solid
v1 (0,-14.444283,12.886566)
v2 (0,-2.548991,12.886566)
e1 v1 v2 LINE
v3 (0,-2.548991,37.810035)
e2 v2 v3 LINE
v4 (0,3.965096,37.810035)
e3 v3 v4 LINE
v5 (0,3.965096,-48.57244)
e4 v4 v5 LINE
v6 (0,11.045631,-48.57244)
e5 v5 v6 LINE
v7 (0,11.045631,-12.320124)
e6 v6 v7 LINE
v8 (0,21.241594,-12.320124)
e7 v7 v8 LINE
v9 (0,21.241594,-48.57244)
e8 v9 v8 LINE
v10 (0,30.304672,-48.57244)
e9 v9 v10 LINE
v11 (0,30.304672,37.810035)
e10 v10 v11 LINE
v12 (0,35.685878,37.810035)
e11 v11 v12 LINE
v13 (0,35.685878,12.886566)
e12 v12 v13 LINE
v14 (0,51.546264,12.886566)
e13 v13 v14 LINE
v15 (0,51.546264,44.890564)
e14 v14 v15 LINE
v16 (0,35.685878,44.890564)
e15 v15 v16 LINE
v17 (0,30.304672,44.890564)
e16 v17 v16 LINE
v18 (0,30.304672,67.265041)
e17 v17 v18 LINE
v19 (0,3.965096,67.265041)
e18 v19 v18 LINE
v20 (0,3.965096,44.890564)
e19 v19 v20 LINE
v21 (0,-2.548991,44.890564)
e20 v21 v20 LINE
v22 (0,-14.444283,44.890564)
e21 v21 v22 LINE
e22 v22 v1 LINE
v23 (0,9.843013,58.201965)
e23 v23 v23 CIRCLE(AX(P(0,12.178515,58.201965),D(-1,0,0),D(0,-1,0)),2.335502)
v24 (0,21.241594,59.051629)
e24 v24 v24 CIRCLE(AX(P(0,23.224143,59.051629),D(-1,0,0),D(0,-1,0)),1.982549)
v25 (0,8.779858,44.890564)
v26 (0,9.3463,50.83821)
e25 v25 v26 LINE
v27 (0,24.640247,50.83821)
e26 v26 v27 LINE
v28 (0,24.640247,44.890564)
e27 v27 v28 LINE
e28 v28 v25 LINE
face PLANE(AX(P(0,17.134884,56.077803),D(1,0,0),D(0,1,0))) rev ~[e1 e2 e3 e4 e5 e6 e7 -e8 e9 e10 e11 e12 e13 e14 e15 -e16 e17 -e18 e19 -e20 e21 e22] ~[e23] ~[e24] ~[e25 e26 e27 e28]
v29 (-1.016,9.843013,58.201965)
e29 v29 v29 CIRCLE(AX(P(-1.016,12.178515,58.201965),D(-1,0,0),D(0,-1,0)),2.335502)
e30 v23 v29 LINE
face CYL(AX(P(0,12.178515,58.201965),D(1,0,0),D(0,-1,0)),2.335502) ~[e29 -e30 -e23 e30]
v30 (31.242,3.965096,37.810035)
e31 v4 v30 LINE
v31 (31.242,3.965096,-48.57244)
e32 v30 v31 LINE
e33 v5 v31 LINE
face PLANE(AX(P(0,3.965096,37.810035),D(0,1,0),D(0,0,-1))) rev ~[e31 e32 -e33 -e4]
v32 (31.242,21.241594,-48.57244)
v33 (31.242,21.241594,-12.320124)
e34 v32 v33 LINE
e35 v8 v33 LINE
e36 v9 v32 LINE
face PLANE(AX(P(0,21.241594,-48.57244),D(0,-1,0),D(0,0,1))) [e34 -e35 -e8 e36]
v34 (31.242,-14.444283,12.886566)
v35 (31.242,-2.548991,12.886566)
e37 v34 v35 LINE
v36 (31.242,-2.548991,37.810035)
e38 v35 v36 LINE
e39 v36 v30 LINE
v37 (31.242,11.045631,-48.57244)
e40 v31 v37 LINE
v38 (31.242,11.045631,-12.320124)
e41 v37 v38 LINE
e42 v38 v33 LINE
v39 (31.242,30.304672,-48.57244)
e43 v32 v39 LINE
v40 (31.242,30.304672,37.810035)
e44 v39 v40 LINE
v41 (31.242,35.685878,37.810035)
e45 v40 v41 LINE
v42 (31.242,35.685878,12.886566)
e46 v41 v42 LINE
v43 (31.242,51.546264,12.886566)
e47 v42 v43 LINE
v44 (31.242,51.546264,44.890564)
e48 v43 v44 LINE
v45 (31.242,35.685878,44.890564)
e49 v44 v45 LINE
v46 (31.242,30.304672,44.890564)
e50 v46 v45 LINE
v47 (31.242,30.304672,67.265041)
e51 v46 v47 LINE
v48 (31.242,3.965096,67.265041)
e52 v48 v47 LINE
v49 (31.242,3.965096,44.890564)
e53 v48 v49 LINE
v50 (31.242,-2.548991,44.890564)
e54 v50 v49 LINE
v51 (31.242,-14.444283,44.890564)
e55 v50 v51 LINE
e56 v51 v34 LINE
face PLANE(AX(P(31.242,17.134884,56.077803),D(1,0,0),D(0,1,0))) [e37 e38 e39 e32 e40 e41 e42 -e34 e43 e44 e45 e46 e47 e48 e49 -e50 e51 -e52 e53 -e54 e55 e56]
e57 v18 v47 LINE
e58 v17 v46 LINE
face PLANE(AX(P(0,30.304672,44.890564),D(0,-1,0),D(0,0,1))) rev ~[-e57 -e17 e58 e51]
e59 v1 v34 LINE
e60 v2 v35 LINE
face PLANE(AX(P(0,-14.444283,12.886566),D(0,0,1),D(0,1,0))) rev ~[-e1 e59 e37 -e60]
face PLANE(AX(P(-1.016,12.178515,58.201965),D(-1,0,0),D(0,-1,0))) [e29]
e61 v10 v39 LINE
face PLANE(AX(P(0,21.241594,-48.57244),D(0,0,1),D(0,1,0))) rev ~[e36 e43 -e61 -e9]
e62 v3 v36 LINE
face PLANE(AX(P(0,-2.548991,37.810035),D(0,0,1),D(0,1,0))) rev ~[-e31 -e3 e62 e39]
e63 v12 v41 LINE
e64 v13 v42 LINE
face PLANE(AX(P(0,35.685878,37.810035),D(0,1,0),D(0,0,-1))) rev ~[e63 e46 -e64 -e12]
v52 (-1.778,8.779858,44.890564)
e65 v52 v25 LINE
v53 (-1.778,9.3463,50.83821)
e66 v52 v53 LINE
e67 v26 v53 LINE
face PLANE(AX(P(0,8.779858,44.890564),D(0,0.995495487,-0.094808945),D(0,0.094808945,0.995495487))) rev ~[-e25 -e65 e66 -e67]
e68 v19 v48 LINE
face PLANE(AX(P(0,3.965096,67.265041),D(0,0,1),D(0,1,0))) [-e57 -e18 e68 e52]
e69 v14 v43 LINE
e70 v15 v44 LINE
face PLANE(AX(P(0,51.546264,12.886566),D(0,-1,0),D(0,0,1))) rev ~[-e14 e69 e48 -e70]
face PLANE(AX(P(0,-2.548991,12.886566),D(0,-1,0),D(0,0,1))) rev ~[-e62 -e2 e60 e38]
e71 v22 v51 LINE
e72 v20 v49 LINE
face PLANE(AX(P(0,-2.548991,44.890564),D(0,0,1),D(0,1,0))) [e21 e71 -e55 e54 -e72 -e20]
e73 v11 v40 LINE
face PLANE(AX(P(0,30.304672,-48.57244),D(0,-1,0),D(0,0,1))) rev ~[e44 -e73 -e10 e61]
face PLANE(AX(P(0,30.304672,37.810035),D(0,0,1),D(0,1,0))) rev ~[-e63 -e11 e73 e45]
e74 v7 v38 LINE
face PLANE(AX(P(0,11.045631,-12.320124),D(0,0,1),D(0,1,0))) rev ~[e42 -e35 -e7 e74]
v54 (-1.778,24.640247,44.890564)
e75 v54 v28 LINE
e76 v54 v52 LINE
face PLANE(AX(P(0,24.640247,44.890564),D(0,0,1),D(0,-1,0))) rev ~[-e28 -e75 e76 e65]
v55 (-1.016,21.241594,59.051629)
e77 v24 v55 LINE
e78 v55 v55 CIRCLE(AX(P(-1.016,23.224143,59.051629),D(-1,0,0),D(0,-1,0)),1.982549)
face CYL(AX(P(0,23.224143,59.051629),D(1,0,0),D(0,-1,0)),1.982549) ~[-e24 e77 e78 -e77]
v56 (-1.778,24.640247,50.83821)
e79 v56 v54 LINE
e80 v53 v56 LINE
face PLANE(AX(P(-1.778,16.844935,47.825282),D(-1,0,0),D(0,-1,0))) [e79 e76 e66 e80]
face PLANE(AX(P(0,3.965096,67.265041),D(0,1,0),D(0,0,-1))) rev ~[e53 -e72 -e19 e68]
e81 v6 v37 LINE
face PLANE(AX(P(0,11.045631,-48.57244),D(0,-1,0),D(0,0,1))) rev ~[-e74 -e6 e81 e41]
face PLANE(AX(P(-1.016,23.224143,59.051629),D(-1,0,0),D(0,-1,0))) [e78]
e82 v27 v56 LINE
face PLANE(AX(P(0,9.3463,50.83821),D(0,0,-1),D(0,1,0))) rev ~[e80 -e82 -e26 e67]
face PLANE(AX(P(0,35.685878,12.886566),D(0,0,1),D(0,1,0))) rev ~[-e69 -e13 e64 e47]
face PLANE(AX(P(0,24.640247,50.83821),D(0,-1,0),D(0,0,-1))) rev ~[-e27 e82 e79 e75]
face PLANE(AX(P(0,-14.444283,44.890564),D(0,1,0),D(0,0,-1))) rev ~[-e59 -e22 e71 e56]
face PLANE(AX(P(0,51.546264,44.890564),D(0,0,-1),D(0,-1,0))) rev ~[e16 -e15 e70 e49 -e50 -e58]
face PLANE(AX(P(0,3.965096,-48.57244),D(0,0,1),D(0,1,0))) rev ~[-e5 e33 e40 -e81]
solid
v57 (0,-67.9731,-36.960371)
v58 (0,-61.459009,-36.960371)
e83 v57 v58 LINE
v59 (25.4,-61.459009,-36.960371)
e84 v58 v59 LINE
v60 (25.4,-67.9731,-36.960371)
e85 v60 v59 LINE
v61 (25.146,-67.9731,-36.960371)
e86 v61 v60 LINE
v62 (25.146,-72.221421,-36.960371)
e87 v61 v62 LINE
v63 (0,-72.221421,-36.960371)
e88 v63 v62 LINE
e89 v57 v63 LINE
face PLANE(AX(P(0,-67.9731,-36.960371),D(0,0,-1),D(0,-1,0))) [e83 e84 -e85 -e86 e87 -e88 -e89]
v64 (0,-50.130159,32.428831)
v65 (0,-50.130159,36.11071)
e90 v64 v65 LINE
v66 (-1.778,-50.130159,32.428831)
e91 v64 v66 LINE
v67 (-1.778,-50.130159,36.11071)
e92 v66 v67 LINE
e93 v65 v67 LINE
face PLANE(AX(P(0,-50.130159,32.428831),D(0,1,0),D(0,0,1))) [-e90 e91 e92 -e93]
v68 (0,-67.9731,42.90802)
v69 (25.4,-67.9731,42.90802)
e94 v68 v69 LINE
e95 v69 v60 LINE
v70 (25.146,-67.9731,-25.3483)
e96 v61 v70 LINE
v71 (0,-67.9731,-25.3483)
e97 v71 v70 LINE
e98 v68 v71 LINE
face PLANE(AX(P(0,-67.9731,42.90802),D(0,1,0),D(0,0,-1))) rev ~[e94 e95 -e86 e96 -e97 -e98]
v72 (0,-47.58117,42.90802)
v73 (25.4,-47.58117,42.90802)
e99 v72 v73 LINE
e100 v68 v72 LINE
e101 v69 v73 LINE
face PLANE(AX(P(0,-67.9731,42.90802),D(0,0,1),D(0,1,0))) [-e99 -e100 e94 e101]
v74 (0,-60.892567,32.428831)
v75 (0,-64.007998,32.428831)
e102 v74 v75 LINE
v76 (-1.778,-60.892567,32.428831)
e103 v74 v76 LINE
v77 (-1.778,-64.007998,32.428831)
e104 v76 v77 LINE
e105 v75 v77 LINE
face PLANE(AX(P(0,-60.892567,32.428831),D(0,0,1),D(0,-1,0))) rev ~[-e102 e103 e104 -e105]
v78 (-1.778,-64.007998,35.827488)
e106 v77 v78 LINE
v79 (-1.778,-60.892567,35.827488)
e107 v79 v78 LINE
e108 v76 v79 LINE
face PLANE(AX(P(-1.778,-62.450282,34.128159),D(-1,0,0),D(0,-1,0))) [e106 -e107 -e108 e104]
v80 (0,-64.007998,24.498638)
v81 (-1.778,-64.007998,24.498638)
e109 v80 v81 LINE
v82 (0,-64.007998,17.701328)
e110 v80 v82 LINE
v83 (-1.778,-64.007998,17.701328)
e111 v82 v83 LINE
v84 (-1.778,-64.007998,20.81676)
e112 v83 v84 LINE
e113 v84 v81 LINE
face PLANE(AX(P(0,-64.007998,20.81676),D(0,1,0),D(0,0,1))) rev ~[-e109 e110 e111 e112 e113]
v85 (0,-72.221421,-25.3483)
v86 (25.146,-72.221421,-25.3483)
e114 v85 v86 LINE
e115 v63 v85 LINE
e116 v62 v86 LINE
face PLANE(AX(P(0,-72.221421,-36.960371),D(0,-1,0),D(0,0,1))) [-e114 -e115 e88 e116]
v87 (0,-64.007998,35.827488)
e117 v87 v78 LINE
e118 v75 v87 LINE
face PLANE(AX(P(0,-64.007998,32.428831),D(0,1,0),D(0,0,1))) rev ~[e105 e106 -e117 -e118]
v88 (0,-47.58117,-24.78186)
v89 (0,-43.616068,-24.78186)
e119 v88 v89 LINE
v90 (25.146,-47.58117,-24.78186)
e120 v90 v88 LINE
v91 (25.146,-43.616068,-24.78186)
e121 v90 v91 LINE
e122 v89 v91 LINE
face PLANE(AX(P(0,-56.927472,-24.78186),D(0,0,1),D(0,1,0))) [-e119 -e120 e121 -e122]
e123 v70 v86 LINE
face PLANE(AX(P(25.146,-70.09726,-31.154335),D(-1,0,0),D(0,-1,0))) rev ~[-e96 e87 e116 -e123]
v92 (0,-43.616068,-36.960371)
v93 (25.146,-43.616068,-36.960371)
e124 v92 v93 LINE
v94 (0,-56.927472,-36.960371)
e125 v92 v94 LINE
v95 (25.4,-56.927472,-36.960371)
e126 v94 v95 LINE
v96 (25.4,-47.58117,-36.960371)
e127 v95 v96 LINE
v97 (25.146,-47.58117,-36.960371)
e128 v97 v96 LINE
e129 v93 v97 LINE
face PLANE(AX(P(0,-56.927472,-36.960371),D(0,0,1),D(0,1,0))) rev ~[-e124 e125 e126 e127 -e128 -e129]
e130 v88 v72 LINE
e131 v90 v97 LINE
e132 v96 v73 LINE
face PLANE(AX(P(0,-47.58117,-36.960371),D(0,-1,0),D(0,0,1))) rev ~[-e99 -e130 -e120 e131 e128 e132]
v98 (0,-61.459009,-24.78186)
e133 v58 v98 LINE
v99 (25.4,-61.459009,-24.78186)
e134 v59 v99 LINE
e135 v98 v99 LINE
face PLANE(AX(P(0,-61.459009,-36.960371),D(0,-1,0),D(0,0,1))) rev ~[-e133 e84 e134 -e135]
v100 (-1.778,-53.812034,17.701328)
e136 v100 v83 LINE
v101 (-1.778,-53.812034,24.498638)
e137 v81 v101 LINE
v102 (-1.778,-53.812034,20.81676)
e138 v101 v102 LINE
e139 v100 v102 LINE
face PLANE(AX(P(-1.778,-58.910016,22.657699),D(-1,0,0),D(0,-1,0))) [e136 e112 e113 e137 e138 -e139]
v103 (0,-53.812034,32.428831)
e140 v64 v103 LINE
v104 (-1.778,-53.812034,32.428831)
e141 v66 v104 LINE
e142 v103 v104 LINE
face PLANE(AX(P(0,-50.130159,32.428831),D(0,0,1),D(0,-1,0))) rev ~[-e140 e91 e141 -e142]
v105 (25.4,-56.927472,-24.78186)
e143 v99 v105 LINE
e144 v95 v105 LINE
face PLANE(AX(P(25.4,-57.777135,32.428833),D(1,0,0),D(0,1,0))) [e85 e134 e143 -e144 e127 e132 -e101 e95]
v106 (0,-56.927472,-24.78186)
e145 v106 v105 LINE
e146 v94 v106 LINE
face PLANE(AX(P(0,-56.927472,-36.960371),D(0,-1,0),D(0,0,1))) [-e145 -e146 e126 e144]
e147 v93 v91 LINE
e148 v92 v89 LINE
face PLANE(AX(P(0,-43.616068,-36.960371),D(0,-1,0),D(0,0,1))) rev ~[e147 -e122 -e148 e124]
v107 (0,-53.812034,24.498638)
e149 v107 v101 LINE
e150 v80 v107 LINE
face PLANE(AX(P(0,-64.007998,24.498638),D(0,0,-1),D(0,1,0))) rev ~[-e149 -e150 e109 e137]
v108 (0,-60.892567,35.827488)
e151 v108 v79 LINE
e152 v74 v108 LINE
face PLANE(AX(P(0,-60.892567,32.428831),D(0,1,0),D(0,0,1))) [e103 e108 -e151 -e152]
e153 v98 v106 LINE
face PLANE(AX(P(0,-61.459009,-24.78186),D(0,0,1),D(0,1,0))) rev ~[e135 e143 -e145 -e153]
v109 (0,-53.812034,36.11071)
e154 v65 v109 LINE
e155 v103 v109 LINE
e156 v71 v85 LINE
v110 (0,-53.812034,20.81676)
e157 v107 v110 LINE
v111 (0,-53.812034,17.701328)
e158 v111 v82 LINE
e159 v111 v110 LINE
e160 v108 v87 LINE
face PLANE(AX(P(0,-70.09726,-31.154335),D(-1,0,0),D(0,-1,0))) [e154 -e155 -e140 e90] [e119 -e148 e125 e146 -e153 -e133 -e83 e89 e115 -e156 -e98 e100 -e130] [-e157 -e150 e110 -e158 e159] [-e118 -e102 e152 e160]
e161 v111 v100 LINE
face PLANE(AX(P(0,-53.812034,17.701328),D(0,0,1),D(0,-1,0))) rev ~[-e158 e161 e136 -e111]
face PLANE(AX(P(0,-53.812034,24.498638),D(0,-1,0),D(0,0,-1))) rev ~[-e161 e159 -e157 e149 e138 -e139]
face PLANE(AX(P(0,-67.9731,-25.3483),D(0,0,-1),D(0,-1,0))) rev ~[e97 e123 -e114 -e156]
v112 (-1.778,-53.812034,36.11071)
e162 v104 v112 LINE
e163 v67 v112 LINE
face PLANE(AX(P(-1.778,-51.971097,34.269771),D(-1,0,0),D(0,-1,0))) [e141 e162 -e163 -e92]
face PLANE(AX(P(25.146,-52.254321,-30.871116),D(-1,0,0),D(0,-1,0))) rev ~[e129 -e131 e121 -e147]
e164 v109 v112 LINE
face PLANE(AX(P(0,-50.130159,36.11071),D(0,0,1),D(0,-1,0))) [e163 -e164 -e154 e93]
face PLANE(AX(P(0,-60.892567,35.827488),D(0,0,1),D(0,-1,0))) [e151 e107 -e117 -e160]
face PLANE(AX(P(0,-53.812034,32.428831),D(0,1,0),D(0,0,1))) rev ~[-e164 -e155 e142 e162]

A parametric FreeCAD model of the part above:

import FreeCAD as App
import Part
import Sketcher
from FreeCAD import Vector
Q = App.Units.Quantity


def add_polygon(sketch, points):
    """Adds a closed chain of lines whose ends are joined by coincident constraints."""
    first, n = sketch.GeometryCount, len(points)
    for a, b in zip(points, points[1:] + points[:1]):
        sketch.addGeometry(Part.LineSegment(App.Vector(*a, 0), App.Vector(*b, 0)), False)
    for i in range(n):
        sketch.addConstraint(Sketcher.Constraint("Coincident", first + i, 2, first + (i + 1) % n, 1))

doc = App.newDocument("Part")
params = doc.addObject("Spreadsheet::Sheet", "Params")
for row, (alias, value) in enumerate([
    ("sketch1_height", "1.2599999 in"),
    ("pad1_length", "1.23 in"),
    ("pad2_length", "0.07 in"),
    ("pad3_length", "0.04 in"),
    ("pad4_length", "1 in"),
    ("pad5_length", "0.99 in"),
    ("pad6_length", "0.07 in"),
], start=1):
    params.set(f"A{row}", alias)
    params.set(f"B{row}", "=" + value)
    params.setAlias(f"B{row}", alias)

body = doc.addObject("PartDesign::Body", "Body")

# Sketch on YZ plane
sketch1 = body.newObject("Sketcher::SketchObject", "Sketch")
sketch1.AttachmentSupport = (doc.getObject("YZ_Plane"), [""])
sketch1.MapMode = "FlatFace"
add_polygon(sketch1, [(4, 67), (4, 45), (-3, 45), (-14, 45), (-14, 13), (-3, 13), (-3, 38), (4, 38), (4, -49), (11, -49), (11, -12), (21, -12), (21, -49), (30, -49), (30, 38), (36, 38), (36, 13), (52, 13), (52, 45), (36, 45), (30, 45), (30, 67)])  # lines 0-21
sketch1.addConstraint([
    Sketcher.Constraint("Vertical", 0),
    Sketcher.Constraint("Horizontal", 1),
    Sketcher.Constraint("Horizontal", 2),
    Sketcher.Constraint("Vertical", 3),
    Sketcher.Constraint("Horizontal", 4),
    Sketcher.Constraint("Vertical", 5),
    Sketcher.Constraint("Horizontal", 6),
    Sketcher.Constraint("Vertical", 7),
    Sketcher.Constraint("Horizontal", 8),
    Sketcher.Constraint("Vertical", 9),
    Sketcher.Constraint("Horizontal", 10),
    Sketcher.Constraint("Vertical", 11),
    Sketcher.Constraint("Horizontal", 12),
    Sketcher.Constraint("Vertical", 13),
    Sketcher.Constraint("Horizontal", 14),
    Sketcher.Constraint("Vertical", 15),
    Sketcher.Constraint("Horizontal", 16),
    Sketcher.Constraint("Vertical", 17),
    Sketcher.Constraint("Horizontal", 18),
    Sketcher.Constraint("Horizontal", 19),
    Sketcher.Constraint("Vertical", 20),
    Sketcher.Constraint("Horizontal", 21),
    Sketcher.Constraint("Horizontal", 8, 2, 11, 2),
    Sketcher.Constraint("Horizontal", 6, 2, 13, 2),
    Sketcher.Constraint("Horizontal", 4, 2, 15, 2),
    Sketcher.Constraint("Horizontal", 2, 2, 17, 2),
    Sketcher.Constraint("Vertical", 1, 2, 4, 2),
    Sketcher.Constraint("Vertical", 0, 2, 6, 2),
    Sketcher.Constraint("Vertical", 15, 2, 18, 2),
    Sketcher.Constraint("Vertical", 13, 2, 19, 2),
    Sketcher.Constraint("DistanceY", 3, 2, 3, 1, Q("1.2599999 in")),
    Sketcher.Constraint("DistanceX", 2, 2, 2, 1, Q("11.895292 mm")),
    Sketcher.Constraint("DistanceX", 12, 1, 12, 2, Q("9.063078 mm")),
    Sketcher.Constraint("DistanceY", 5, 1, 5, 2, Q("24.923469 mm")),
    Sketcher.Constraint("DistanceX", 7, 2, 10, 2, Q("17.276498 mm")),
    Sketcher.Constraint("DistanceX", 1, 2, 1, 1, Q("6.514088 mm")),
    Sketcher.Constraint("DistanceX", 8, 1, 8, 2, Q("7.080535 mm")),
    Sketcher.Constraint("DistanceX", 14, 1, 14, 2, Q("5.381206 mm")),
    Sketcher.Constraint("DistanceX", 16, 1, 16, 2, Q("15.860386 mm")),
    Sketcher.Constraint("DistanceY", 0, 2, 0, 1, Q("22.374477 mm")),
    Sketcher.Constraint("DistanceY", 7, 2, 7, 1, Q("86.382475 mm")),
    Sketcher.Constraint("DistanceY", 9, 1, 9, 2, Q("36.252316 mm")),
    Sketcher.Constraint("DistanceX", 1, 2, -1, 1, Q("2.548991 mm")),
    Sketcher.Constraint("DistanceY", 7, 2, -1, 1, Q("48.57244 mm")),
])
sketch1.setExpression("Constraints[52]", "Params.sketch1_height")
pad1 = body.newObject("PartDesign::Pad", "Pad")
pad1.Profile = sketch1
pad1.setExpression("Length", "Params.pad1_length")

# Sketch on YZ plane
sketch2 = body.newObject("Sketcher::SketchObject", "Sketch001")
sketch2.AttachmentSupport = (doc.getObject("YZ_Plane"), [""])
sketch2.MapMode = "FlatFace"
add_polygon(sketch2, [(9, 45), (9, 51), (25, 51), (25, 45)])  # lines 0-3
sketch2.addConstraint([
    Sketcher.Constraint("Horizontal", 1),
    Sketcher.Constraint("Vertical", 2),
    Sketcher.Constraint("Horizontal", 3),
    Sketcher.Constraint("DistanceX", 3, 2, 3, 1, Q("15.860389 mm")),
    Sketcher.Constraint("DistanceX", -1, 1, 0, 2, Q("9.3463 mm")),
    Sketcher.Constraint("Distance", 0, Q("5.974558 mm")),
    Sketcher.Constraint("DistanceX", 1, 1, 1, 2, Q("15.293947 mm")),
    Sketcher.Constraint("DistanceY", -1, 1, 0, 2, Q("50.83821 mm")),
])
pad2 = body.newObject("PartDesign::Pad", "Pad001")
pad2.Profile = sketch2
pad2.setExpression("Length", "Params.pad2_length")
pad2.Reversed = True

# Sketch on YZ plane
sketch3 = body.newObject("Sketcher::SketchObject", "Sketch002")
sketch3.AttachmentSupport = (doc.getObject("YZ_Plane"), [""])
sketch3.MapMode = "FlatFace"
sketch3.addGeometry(Part.Circle(Vector(23.2, 59.1, 0), Vector(0, 0, 1), 2), False)  # 0
sketch3.addGeometry(Part.Circle(Vector(12.2, 58.2, 0), Vector(0, 0, 1), 2.3), False)  # 1
add_polygon(sketch3, [(8.8, 44.9), (9.3, 50.8), (24.6, 50.8), (24.6, 44.9)])  # lines 2-5
sketch3.addConstraint([
    Sketcher.Constraint("Horizontal", 3),
    Sketcher.Constraint("Vertical", 4),
    Sketcher.Constraint("Horizontal", 5),
    Sketcher.Constraint("Diameter", 0, Q("3.965098 mm")),
    Sketcher.Constraint("Diameter", 1, Q("4.671004 mm")),
    Sketcher.Constraint("DistanceX", 5, 2, 5, 1, Q("15.860389 mm")),
    Sketcher.Constraint("DistanceX", -1, 1, 2, 2, Q("9.3463 mm")),
    Sketcher.Constraint("DistanceY", 4, 2, 1, 3, Q("13.311401 mm")),
    Sketcher.Constraint("Distance", 2, Q("5.974558 mm")),
    Sketcher.Constraint("DistanceX", 3, 1, 3, 2, Q("15.293947 mm")),
    Sketcher.Constraint("DistanceY", -1, 1, 0, 3, Q("59.051629 mm")),
    Sketcher.Constraint("DistanceY", -1, 1, 2, 2, Q("50.83821 mm")),
    Sketcher.Constraint("DistanceX", 1, 3, 0, 3, Q("11.045628 mm")),
    Sketcher.Constraint("DistanceX", -1, 1, 0, 3, Q("23.224143 mm")),
])
pad3 = body.newObject("PartDesign::Pad", "Pad002")
pad3.Profile = sketch3
pad3.setExpression("Length", "Params.pad3_length")
pad3.Reversed = True
body2 = doc.addObject("PartDesign::Body", "Body001")

# Sketch on YZ plane
sketch4 = body2.newObject("Sketcher::SketchObject", "Sketch003")
sketch4.AttachmentSupport = (doc.getObject("YZ_Plane001"), [""])
sketch4.MapMode = "FlatFace"
add_polygon(sketch4, [(-68, 42.9), (-68, -37), (-61.5, -37), (-61.5, -24.8), (-56.9, -24.8), (-56.9, -37), (-47.6, -37), (-47.6, 42.9)])  # lines 0-7
sketch4.addConstraint([
    Sketcher.Constraint("Vertical", 0),
    Sketcher.Constraint("Horizontal", 1),
    Sketcher.Constraint("Vertical", 2),
    Sketcher.Constraint("Horizontal", 3),
    Sketcher.Constraint("Vertical", 4),
    Sketcher.Constraint("Horizontal", 5),
    Sketcher.Constraint("Vertical", 6),
    Sketcher.Constraint("Horizontal", 7),
    Sketcher.Constraint("Horizontal", 1, 2, 4, 2),
    Sketcher.Constraint("DistanceX", 1, 1, 1, 2, Q("6.514091 mm")),
    Sketcher.Constraint("DistanceX", 7, 2, 7, 1, Q("20.39193 mm")),
    Sketcher.Constraint("DistanceY", 0, 2, 0, 1, Q("79.868391 mm")),
    Sketcher.Constraint("DistanceY", 2, 1, 2, 2, Q("12.17851 mm")),
    Sketcher.Constraint("DistanceX", 0, 2, -1, 1, Q("67.9731 mm")),
    Sketcher.Constraint("DistanceX", 3, 1, 3, 2, Q("4.531536 mm")),
    Sketcher.Constraint("DistanceY", 0, 2, -1, 1, Q("36.960371 mm")),
])
pad4 = body2.newObject("PartDesign::Pad", "Pad003")
pad4.Profile = sketch4
pad4.setExpression("Length", "Params.pad4_length")

# Sketch on YZ plane
sketch5 = body2.newObject("Sketcher::SketchObject", "Sketch004")
sketch5.AttachmentSupport = (doc.getObject("YZ_Plane001"), [""])
sketch5.MapMode = "FlatFace"
add_polygon(sketch5, [(-68, -25.3), (-68, -37), (-72.2, -37), (-72.2, -25.3)])  # lines 0-3
add_polygon(sketch5, [(-56.9, -37), (-56.9, -24.8), (-43.6, -24.8), (-43.6, -37)])  # lines 4-7
sketch5.addConstraint([
    Sketcher.Constraint("Vertical", 0),
    Sketcher.Constraint("Horizontal", 1),
    Sketcher.Constraint("Vertical", 2),
    Sketcher.Constraint("Horizontal", 3),
    Sketcher.Constraint("Vertical", 4),
    Sketcher.Constraint("Horizontal", 5),
    Sketcher.Constraint("Vertical", 6),
    Sketcher.Constraint("Horizontal", 7),
    Sketcher.Constraint("Horizontal", 1, 2, 6, 2),
    Sketcher.Constraint("DistanceX", 1, 2, 1, 1, Q("4.248321 mm")),
    Sketcher.Constraint("DistanceY", 0, 2, 0, 1, Q("11.612071 mm")),
    Sketcher.Constraint("DistanceY", 4, 1, 4, 2, Q("12.17851 mm")),
    Sketcher.Constraint("DistanceX", 0, 2, -1, 1, Q("67.9731 mm")),
    Sketcher.Constraint("DistanceY", 2, 2, -1, 1, Q("25.3483 mm")),
    Sketcher.Constraint("DistanceX", 5, 1, 5, 2, Q("13.311405 mm")),
    Sketcher.Constraint("DistanceX", 2, 2, 4, 2, Q("15.293948 mm")),
])
pad5 = body2.newObject("PartDesign::Pad", "Pad004")
pad5.Profile = sketch5
pad5.setExpression("Length", "Params.pad5_length")

# Sketch on YZ plane
sketch6 = body2.newObject("Sketcher::SketchObject", "Sketch005")
sketch6.AttachmentSupport = (doc.getObject("YZ_Plane001"), [""])
sketch6.MapMode = "FlatFace"
add_polygon(sketch6, [(-50.1, 36.1), (-50.1, 32.4), (-53.8, 32.4), (-53.8, 36.1)])  # lines 0-3
add_polygon(sketch6, [(-60.9, 35.8), (-60.9, 32.4), (-64, 32.4), (-64, 35.8)])  # lines 4-7
add_polygon(sketch6, [(-64, 20.8), (-64, 24.5), (-53.8, 24.5), (-53.8, 20.8), (-53.8, 17.7), (-64, 17.7)])  # lines 8-13
sketch6.addConstraint([
    Sketcher.Constraint("Vertical", 0),
    Sketcher.Constraint("Horizontal", 1),
    Sketcher.Constraint("Vertical", 2),
    Sketcher.Constraint("Horizontal", 3),
    Sketcher.Constraint("Vertical", 4),
    Sketcher.Constraint("Horizontal", 5),
    Sketcher.Constraint("Vertical", 6),
    Sketcher.Constraint("Horizontal", 7),
    Sketcher.Constraint("Vertical", 8),
    Sketcher.Constraint("Horizontal", 9),
    Sketcher.Constraint("Vertical", 10),
    Sketcher.Constraint("Vertical", 11),
    Sketcher.Constraint("Horizontal", 12),
    Sketcher.Constraint("Vertical", 13),
    Sketcher.Constraint("Horizontal", 1, 2, 4, 2),
    Sketcher.Constraint("Horizontal", 10, 2, 13, 2),
    Sketcher.Constraint("Vertical", 6, 2, 8, 2),
    Sketcher.Constraint("Vertical", 2, 2, 9, 2),
    Sketcher.Constraint("Equal", 2, 8),
    Sketcher.Constraint("Equal", 3, 10),
    Sketcher.Constraint("Equal", 7, 11),
    Sketcher.Constraint("DistanceX", 5, 2, -1, 1, Q("2.5199999 in")),
    Sketcher.Constraint("DistanceX", 5, 2, 5, 1, Q("3.11543 mm")),
    Sketcher.Constraint("DistanceY", 0, 2, 0, 1, Q("3.681879 mm")),
    Sketcher.Constraint("DistanceX", 9, 1, 9, 2, Q("10.195963 mm")),
    Sketcher.Constraint("DistanceY", 4, 2, 4, 1, Q("3.398657 mm")),
    Sketcher.Constraint("DistanceY", -1, 1, 0, 2, Q("32.428831 mm")),
    Sketcher.Constraint("DistanceY", -1, 1, 10, 2, Q("20.81676 mm")),
])
pad6 = body2.newObject("PartDesign::Pad", "Pad005")
pad6.Profile = sketch6
pad6.setExpression("Length", "Params.pad6_length")
pad6.Reversed = True

doc.recompute()
